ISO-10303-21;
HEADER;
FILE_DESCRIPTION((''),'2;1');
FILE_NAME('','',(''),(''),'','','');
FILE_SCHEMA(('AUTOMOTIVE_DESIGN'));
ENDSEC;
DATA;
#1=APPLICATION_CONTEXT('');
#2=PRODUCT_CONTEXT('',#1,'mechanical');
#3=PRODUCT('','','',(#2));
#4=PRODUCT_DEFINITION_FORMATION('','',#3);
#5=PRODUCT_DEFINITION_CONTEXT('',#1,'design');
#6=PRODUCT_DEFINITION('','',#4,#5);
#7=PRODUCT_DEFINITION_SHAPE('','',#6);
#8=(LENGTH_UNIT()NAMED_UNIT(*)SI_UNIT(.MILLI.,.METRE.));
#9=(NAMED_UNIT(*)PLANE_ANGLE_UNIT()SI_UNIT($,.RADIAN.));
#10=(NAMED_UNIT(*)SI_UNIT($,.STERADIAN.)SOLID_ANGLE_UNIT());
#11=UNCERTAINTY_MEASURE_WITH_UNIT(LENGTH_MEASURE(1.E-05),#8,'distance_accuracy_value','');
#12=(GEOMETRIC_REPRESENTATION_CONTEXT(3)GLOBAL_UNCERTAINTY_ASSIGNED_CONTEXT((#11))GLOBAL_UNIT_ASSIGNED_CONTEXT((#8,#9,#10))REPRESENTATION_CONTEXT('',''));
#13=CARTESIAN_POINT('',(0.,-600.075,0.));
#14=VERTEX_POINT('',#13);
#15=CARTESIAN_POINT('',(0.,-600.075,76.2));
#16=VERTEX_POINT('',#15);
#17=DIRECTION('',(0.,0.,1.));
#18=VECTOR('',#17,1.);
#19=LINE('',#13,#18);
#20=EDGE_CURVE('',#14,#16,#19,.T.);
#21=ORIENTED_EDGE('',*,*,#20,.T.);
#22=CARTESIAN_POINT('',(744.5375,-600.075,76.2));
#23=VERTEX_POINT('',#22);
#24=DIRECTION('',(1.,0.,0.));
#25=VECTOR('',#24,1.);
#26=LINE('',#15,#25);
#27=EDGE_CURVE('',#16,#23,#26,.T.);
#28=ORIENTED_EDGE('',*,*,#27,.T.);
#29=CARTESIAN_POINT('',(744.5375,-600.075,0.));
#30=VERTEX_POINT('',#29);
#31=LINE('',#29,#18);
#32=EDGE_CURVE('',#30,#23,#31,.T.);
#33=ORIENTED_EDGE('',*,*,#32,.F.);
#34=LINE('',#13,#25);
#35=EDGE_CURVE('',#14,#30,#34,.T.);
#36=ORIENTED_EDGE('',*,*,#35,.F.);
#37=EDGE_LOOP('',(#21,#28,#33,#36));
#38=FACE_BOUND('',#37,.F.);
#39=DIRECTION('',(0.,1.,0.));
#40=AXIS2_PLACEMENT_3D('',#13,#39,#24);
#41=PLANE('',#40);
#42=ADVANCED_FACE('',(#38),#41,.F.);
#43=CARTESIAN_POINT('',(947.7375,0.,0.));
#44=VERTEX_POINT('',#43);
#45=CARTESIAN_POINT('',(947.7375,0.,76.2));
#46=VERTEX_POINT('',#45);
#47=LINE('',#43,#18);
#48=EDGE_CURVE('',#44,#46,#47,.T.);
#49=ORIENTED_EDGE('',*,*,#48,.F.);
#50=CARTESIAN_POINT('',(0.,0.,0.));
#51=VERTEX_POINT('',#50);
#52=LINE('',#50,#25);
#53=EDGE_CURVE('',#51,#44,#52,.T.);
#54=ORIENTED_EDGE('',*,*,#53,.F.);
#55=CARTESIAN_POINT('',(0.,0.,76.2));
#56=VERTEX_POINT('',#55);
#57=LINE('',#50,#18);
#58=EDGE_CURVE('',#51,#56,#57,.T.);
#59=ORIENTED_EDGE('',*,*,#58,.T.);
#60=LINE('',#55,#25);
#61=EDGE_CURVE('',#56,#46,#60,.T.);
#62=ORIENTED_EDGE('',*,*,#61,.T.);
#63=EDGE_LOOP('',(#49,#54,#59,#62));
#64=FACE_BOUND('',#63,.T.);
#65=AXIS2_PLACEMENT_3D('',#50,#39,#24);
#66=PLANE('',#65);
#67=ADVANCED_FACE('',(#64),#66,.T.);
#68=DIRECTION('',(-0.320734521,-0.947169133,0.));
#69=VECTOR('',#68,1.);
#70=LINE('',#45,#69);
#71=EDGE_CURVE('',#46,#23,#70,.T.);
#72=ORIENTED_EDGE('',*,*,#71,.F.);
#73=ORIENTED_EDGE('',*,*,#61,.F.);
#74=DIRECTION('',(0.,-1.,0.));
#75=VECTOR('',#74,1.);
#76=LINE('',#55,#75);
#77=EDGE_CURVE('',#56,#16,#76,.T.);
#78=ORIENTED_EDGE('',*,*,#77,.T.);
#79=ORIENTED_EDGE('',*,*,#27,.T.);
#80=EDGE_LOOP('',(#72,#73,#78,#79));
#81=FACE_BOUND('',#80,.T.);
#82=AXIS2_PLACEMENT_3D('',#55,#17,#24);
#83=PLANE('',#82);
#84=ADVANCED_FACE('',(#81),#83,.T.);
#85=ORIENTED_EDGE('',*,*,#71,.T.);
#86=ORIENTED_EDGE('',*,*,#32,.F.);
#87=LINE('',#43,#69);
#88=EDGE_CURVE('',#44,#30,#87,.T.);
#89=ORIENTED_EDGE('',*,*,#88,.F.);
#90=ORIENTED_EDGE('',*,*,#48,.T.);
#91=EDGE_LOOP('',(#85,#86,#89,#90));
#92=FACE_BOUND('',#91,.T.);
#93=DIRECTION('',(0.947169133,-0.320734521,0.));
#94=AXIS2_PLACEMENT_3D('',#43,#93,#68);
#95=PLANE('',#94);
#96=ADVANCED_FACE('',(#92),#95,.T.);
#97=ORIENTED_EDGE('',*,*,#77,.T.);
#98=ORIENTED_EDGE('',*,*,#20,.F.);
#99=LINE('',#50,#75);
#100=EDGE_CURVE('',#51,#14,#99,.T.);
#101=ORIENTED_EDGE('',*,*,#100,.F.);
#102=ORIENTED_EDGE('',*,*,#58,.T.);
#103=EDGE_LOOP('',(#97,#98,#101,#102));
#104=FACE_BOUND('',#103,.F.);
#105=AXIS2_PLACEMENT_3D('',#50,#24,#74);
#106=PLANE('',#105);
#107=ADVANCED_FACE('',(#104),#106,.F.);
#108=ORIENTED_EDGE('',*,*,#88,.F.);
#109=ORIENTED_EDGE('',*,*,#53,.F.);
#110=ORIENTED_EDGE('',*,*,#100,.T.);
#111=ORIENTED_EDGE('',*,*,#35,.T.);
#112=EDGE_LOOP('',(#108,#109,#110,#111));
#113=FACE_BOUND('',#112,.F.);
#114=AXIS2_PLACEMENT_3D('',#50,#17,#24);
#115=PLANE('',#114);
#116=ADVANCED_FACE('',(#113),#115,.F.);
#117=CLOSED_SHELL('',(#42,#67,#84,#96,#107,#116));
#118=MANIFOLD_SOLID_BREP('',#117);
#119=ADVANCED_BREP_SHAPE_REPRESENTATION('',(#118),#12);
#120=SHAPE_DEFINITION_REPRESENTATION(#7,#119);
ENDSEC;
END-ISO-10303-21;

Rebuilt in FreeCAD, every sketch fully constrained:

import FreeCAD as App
import Part
import Sketcher

V = App.Vector
Q = App.Units.Quantity

doc = App.newDocument("Part")
body = doc.addObject("PartDesign::Body", "Body")

sketch1 = doc.addObject("Sketcher::SketchObject", "Sketch")
body.addObject(sketch1)
sketch1.AttachmentSupport = (doc.XY_Plane, [""])
sketch1.MapMode = "FlatFace"
sketch1.addGeometry(Part.LineSegment(V(947.7375, 0, 0), V(0, 0, 0)), False)
sketch1.addGeometry(Part.LineSegment(V(0, 0, 0), V(0, -600.075, 0)), False)
sketch1.addGeometry(Part.LineSegment(V(0, -600.075, 0), V(744.5375, -600.075, 0)), False)
sketch1.addGeometry(Part.LineSegment(V(744.5375, -600.075, 0), V(947.7375, 0, 0)), False)
sketch1.addConstraint(Sketcher.Constraint("Coincident", 0, 2, 1, 1))
sketch1.addConstraint(Sketcher.Constraint("Coincident", 1, 2, 2, 1))
sketch1.addConstraint(Sketcher.Constraint("Coincident", 2, 2, 3, 1))
sketch1.addConstraint(Sketcher.Constraint("Coincident", 3, 2, 0, 1))
sketch1.addConstraint(Sketcher.Constraint("Horizontal", 0))
sketch1.addConstraint(Sketcher.Constraint("Vertical", 1))
sketch1.addConstraint(Sketcher.Constraint("Horizontal", 2))
sketch1.addConstraint(Sketcher.Constraint("Coincident", 0, 2, -1, 1))
sketch1.addConstraint(Sketcher.Constraint("DistanceX", 2, 2, 3, 2, Q("8 in")))
sketch1.addConstraint(Sketcher.Constraint("DistanceX", 0, 2, 0, 1, Q("37.3125 in")))
sketch1.addConstraint(Sketcher.Constraint("DistanceY", 1, 2, 1, 1, Q("23.625 in")))
pad1 = doc.addObject("PartDesign::Pad", "Pad")
body.addObject(pad1)
pad1.Profile = sketch1
pad1.Length = Q("3 in")

doc.recompute()
